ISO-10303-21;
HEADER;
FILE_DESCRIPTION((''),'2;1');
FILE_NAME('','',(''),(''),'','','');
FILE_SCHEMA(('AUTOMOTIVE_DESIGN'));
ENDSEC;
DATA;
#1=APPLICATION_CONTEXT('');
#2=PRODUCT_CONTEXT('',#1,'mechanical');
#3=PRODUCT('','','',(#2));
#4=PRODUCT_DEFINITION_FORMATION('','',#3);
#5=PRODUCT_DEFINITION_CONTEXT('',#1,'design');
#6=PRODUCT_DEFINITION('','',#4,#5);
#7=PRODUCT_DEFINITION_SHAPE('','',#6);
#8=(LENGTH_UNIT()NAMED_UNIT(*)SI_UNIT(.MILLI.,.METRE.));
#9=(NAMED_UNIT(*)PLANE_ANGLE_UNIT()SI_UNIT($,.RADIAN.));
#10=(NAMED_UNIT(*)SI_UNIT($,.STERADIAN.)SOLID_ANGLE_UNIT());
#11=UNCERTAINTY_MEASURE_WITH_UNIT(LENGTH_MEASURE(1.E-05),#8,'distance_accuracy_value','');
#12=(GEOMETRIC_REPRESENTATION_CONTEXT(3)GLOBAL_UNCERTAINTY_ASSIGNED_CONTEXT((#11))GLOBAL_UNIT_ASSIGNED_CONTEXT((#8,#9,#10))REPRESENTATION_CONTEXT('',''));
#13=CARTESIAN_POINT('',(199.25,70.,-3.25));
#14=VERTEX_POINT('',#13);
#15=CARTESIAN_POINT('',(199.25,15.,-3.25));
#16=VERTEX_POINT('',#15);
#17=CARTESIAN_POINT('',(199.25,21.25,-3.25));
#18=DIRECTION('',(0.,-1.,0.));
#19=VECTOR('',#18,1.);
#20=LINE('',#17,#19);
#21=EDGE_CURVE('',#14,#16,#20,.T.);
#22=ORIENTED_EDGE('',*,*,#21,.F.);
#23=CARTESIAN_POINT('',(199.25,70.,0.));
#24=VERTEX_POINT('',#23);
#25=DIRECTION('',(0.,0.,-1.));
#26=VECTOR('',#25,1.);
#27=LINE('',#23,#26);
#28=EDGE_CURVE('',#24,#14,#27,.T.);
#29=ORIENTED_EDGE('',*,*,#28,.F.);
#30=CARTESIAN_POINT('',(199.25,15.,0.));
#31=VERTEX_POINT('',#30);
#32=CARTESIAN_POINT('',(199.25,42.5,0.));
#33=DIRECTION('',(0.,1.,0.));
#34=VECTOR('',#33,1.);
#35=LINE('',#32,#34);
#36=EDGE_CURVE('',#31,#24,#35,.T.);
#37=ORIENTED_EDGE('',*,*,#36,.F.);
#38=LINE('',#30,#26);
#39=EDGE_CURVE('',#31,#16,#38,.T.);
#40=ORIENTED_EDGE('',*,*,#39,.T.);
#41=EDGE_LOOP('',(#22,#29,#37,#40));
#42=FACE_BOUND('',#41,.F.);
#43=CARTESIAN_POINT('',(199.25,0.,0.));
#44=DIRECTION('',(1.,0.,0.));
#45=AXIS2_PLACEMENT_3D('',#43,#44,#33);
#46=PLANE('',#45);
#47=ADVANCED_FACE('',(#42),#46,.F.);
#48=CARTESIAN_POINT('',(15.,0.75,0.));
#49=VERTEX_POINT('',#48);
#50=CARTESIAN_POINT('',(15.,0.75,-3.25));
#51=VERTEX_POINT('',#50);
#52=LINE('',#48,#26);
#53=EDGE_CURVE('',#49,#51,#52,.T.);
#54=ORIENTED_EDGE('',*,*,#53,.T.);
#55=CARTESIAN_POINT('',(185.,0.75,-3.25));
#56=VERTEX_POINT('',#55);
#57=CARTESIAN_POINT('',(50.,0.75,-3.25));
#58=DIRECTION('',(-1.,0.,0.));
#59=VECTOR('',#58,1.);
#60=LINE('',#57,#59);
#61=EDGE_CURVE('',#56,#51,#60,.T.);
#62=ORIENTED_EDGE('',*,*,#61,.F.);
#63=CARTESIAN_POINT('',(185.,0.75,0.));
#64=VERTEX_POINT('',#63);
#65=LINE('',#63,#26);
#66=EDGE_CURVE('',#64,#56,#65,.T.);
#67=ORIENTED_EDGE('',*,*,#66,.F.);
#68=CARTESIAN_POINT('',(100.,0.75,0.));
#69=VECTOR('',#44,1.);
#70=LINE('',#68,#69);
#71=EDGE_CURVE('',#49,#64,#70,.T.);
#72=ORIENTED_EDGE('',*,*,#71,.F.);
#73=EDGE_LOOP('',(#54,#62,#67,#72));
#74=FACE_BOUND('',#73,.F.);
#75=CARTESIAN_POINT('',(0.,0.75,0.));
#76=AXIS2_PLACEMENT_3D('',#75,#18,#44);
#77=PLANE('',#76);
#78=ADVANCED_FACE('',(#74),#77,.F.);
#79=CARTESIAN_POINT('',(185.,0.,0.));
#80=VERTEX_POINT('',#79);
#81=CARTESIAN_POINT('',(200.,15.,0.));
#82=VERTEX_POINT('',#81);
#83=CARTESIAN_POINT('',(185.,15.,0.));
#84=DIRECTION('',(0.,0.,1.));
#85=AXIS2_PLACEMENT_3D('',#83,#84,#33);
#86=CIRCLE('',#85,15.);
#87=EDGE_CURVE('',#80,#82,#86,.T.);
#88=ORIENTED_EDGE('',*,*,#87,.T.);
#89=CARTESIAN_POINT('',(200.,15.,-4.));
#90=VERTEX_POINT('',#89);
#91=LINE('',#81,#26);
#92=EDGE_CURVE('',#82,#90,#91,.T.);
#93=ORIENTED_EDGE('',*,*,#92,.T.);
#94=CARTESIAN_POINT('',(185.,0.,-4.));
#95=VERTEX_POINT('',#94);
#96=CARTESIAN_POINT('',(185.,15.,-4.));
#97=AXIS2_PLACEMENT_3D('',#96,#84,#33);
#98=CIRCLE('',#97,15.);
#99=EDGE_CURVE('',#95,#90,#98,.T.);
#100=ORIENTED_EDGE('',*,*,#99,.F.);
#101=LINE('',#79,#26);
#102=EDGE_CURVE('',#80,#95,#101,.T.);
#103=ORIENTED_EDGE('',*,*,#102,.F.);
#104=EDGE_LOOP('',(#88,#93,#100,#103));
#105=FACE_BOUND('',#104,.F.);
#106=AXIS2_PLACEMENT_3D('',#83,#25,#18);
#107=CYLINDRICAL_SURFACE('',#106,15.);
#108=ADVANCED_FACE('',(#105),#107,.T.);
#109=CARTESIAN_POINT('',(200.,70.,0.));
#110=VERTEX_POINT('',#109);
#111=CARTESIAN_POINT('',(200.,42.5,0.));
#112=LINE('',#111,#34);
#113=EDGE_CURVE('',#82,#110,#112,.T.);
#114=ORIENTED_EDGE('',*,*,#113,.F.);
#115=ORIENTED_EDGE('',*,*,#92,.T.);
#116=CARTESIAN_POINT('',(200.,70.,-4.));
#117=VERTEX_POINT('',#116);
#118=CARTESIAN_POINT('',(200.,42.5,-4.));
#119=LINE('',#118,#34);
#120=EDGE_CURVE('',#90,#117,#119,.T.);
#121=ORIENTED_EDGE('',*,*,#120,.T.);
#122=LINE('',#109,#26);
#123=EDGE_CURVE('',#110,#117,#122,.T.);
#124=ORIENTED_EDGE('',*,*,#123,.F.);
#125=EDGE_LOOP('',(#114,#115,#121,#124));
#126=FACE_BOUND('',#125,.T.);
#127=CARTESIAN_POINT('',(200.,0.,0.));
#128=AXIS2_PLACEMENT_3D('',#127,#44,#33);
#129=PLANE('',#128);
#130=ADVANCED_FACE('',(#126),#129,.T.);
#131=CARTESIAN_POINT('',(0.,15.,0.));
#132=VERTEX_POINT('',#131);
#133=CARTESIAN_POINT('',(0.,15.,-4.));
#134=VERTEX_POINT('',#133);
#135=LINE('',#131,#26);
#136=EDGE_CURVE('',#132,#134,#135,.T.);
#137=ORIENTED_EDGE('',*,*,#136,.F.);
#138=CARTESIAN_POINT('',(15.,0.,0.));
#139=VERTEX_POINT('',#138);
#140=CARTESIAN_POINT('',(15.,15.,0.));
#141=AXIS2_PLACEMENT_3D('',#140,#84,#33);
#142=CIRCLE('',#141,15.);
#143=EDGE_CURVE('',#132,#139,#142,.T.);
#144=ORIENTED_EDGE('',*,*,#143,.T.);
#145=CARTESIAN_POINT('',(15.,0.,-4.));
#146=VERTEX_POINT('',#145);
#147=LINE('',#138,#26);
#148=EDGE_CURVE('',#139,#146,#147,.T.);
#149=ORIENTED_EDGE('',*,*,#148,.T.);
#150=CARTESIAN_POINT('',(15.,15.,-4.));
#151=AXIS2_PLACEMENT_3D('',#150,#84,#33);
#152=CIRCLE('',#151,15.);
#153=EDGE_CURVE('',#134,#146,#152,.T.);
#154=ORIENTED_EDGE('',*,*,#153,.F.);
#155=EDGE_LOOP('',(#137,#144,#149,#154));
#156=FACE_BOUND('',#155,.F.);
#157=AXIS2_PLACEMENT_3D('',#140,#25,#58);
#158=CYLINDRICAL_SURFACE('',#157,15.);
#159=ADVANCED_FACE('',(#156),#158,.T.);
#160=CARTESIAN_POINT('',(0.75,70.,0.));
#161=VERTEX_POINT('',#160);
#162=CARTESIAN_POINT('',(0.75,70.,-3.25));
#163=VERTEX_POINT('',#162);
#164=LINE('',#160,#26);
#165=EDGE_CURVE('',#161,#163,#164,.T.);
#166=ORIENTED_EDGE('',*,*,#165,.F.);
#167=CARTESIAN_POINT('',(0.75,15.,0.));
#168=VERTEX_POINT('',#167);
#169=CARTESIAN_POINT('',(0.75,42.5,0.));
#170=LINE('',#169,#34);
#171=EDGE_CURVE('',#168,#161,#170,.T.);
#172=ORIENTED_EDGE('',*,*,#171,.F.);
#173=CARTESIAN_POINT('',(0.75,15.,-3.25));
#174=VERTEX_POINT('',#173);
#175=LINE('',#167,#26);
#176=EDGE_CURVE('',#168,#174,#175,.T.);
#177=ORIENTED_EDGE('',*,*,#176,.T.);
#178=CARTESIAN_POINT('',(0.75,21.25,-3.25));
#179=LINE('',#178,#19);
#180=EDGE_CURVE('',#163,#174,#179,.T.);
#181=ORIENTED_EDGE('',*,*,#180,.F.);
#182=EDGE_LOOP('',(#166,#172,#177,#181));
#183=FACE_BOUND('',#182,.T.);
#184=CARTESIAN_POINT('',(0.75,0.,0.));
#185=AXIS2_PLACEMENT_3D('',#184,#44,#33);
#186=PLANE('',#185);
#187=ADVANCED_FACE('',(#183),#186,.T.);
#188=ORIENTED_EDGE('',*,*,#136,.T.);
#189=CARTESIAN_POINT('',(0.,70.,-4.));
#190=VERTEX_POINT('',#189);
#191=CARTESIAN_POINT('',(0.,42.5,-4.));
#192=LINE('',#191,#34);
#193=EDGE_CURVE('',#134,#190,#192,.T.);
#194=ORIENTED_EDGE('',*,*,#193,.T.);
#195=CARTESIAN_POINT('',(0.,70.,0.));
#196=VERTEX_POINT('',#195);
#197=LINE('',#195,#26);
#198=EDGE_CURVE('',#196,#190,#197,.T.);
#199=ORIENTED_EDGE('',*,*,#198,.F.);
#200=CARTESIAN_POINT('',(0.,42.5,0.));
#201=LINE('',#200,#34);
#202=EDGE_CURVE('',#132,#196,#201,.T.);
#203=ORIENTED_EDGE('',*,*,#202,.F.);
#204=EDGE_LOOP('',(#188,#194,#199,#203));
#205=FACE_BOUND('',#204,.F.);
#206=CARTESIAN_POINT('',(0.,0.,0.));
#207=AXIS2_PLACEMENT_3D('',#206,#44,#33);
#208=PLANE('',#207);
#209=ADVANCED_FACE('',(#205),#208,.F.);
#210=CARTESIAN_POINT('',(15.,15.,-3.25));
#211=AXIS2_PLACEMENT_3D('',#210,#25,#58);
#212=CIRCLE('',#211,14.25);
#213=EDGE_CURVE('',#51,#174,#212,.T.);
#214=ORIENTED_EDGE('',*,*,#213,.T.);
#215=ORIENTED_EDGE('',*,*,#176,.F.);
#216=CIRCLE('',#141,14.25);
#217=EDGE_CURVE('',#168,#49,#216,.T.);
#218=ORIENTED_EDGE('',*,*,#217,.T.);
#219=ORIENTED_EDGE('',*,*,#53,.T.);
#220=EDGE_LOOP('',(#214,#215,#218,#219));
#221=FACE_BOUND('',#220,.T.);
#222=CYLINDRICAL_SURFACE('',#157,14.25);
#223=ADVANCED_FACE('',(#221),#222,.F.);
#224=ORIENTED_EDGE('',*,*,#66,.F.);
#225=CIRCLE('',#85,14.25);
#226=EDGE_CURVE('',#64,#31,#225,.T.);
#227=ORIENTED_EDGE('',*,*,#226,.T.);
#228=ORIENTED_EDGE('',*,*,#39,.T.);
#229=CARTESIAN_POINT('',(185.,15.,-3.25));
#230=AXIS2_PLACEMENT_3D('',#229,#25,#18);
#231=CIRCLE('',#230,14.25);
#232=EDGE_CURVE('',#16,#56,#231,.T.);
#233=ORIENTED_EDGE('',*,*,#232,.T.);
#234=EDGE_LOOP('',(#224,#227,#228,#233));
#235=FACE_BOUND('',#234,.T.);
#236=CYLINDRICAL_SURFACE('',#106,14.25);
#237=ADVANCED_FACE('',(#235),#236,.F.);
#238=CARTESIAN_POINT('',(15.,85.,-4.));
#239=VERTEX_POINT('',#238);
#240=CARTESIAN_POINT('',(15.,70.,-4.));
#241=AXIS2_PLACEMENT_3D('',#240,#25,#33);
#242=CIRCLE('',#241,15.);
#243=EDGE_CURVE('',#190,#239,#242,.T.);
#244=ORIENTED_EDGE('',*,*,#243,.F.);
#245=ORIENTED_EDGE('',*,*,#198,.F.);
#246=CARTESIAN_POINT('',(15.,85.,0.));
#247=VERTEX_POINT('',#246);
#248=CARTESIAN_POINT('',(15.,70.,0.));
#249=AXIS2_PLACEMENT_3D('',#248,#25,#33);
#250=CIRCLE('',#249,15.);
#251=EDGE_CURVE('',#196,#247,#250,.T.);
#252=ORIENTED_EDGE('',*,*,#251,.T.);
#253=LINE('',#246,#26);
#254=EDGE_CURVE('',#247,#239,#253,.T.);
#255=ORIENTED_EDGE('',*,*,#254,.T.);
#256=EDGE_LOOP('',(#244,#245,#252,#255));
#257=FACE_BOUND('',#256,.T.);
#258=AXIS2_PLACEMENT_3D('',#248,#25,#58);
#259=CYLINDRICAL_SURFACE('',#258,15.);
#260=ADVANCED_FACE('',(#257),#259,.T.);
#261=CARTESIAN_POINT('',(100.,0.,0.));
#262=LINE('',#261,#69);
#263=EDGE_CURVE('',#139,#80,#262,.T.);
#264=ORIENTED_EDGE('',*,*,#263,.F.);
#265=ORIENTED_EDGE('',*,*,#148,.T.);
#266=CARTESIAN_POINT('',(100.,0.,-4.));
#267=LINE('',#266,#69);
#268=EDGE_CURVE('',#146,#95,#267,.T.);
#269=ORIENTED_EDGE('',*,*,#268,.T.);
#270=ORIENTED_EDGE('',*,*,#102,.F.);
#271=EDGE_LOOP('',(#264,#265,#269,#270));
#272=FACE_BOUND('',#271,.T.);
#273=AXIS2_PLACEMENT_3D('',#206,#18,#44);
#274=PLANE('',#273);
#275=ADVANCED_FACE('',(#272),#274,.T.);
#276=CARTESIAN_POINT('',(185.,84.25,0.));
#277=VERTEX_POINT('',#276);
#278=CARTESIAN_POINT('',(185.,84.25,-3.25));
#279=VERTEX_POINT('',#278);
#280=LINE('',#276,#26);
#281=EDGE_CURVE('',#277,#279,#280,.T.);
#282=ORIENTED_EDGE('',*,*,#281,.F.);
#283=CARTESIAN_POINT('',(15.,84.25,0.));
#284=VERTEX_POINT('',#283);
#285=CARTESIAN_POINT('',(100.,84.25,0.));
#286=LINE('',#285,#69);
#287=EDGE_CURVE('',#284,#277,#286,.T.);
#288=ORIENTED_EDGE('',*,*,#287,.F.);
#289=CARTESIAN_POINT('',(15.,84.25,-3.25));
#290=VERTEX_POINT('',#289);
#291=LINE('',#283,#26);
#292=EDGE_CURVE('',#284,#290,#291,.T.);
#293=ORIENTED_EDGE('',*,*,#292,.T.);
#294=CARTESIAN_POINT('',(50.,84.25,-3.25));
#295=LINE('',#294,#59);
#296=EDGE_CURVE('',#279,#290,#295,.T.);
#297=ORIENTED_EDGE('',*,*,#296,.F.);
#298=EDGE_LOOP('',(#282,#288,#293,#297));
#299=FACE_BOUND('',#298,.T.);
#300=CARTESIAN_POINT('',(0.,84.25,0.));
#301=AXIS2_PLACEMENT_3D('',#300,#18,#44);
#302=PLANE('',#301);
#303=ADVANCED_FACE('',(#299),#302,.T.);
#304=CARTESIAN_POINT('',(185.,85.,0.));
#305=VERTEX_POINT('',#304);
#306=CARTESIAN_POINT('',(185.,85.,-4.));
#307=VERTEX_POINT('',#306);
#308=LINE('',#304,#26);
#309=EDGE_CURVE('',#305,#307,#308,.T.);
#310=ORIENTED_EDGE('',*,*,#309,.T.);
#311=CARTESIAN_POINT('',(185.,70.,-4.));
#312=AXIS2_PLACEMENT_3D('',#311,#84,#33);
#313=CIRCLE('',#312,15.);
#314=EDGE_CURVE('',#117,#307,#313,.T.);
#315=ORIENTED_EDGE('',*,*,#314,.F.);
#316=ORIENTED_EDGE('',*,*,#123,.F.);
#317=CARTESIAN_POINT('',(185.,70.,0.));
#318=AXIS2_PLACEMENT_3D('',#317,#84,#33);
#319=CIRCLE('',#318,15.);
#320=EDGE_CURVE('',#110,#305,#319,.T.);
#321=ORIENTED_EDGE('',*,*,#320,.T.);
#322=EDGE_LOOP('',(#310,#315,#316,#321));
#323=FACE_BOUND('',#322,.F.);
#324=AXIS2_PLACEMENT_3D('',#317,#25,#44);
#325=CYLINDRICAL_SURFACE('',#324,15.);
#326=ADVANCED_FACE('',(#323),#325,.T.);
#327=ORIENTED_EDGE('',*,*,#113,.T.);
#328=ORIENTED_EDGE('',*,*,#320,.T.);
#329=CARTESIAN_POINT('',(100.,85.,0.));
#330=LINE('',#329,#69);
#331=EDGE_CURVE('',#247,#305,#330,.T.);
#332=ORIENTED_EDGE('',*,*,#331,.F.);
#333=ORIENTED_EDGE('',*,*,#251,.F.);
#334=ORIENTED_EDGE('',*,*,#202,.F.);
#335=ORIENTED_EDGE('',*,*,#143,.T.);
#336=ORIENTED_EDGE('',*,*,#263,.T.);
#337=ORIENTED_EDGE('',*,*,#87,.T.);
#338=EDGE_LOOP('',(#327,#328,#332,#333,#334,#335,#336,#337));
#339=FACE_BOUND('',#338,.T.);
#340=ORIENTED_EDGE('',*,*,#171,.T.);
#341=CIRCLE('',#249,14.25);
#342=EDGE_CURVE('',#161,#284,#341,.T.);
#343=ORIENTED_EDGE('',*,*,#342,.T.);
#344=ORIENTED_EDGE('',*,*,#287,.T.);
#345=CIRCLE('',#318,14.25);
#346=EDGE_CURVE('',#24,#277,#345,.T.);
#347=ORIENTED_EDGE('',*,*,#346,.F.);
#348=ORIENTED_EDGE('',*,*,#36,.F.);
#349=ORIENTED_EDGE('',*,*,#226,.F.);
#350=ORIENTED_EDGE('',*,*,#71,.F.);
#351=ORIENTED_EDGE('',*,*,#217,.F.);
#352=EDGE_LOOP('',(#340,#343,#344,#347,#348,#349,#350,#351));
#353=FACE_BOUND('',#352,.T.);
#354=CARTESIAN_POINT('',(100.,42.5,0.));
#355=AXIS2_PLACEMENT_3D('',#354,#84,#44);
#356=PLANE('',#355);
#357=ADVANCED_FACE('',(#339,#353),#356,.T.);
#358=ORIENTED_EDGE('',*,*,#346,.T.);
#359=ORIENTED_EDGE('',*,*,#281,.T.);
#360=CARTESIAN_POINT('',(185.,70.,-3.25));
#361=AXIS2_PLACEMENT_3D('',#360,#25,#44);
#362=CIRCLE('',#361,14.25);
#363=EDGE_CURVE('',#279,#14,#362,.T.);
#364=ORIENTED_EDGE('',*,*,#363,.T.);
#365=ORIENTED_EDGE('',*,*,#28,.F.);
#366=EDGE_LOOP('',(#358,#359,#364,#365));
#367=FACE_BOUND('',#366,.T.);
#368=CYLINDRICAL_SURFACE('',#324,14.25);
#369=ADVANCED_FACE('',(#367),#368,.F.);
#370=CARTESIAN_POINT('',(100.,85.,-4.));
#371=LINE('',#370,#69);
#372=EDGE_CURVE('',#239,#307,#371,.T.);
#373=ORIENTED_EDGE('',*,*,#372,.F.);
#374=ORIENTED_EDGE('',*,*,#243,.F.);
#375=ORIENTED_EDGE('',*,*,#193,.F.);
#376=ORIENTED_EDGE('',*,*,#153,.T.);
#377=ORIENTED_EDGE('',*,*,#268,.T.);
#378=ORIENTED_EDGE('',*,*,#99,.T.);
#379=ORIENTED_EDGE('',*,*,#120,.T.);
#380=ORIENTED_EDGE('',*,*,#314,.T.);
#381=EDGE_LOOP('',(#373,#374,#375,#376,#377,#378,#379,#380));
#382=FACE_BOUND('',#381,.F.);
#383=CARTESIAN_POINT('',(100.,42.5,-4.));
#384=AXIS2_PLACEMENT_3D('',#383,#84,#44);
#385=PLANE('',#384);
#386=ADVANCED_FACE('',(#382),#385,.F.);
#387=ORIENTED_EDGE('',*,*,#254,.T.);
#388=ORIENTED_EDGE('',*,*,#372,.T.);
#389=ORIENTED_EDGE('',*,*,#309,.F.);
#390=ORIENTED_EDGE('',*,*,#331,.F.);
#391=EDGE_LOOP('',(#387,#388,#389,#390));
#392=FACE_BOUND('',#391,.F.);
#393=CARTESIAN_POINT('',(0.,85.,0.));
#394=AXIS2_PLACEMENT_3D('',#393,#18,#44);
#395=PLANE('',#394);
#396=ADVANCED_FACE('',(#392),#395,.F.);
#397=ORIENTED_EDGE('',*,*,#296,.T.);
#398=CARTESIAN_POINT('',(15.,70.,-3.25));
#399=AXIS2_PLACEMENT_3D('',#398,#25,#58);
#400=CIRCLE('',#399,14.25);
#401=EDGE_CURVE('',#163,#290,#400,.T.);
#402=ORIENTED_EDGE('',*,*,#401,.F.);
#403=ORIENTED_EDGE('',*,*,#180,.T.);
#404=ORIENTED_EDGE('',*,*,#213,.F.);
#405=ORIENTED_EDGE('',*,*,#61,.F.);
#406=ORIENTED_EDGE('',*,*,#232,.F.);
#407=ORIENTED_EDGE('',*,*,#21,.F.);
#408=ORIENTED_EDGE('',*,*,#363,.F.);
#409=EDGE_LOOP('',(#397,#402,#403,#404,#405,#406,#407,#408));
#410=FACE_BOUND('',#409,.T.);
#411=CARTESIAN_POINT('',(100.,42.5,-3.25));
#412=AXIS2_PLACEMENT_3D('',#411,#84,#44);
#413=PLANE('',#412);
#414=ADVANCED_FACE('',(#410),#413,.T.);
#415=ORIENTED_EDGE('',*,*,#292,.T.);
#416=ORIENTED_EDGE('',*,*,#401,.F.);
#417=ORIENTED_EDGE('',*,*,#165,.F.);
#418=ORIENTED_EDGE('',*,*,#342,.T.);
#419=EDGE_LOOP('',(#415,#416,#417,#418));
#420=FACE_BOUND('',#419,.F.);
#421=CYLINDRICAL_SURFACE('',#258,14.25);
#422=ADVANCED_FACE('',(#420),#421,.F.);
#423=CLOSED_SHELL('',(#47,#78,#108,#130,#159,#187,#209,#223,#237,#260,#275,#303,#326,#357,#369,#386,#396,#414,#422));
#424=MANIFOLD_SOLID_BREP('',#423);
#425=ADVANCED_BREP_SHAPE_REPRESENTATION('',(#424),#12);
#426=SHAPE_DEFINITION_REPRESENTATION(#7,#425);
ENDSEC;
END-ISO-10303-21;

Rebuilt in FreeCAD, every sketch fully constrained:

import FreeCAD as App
import Part
import Sketcher

V = App.Vector
Q = App.Units.Quantity


def edges_at(feature, points):
    """Names of the edges that pass closest to the given points."""
    edges = feature.Shape.Edges
    near = lambda p: min(range(len(edges)), key=lambda i: edges[i].distToShape(Part.Vertex(*p))[0])
    return sorted({f"Edge{near(p) + 1}" for p in points})


def faces_at(feature, points):
    """Names of the faces that lie closest to the given points."""
    faces = feature.Shape.Faces
    near = lambda p: min(range(len(faces)), key=lambda i: faces[i].distToShape(Part.Vertex(*p))[0])
    return sorted({f"Face{near(p) + 1}" for p in points})

doc = App.newDocument("Part")
body = doc.addObject("PartDesign::Body", "Body")

# Sketch on XY plane
sketch1 = doc.addObject("Sketcher::SketchObject", "Sketch")
body.addObject(sketch1)
sketch1.AttachmentSupport = (doc.XY_Plane, [""])
sketch1.MapMode = "FlatFace"
sketch1.addGeometry(Part.LineSegment(V(0, 85, 0), V(0, 0, 0)), False)
sketch1.addGeometry(Part.LineSegment(V(0, 0, 0), V(200, 0, 0)), False)
sketch1.addGeometry(Part.LineSegment(V(200, 0, 0), V(200, 85, 0)), False)
sketch1.addGeometry(Part.LineSegment(V(200, 85, 0), V(0, 85, 0)), False)
sketch1.addConstraint(Sketcher.Constraint("Coincident", 0, 2, 1, 1))
sketch1.addConstraint(Sketcher.Constraint("Coincident", 1, 2, 2, 1))
sketch1.addConstraint(Sketcher.Constraint("Coincident", 2, 2, 3, 1))
sketch1.addConstraint(Sketcher.Constraint("Coincident", 3, 2, 0, 1))
sketch1.addConstraint(Sketcher.Constraint("Vertical", 0))
sketch1.addConstraint(Sketcher.Constraint("Horizontal", 1))
sketch1.addConstraint(Sketcher.Constraint("Vertical", 2))
sketch1.addConstraint(Sketcher.Constraint("Horizontal", 3))
sketch1.addConstraint(Sketcher.Constraint("Coincident", 0, 2, -1, 1))
sketch1.addConstraint(Sketcher.Constraint("DistanceX", 1, 1, 1, 2, Q("200 mm")))
sketch1.addConstraint(Sketcher.Constraint("DistanceY", 0, 2, 0, 1, Q("85 mm")))
pad1 = doc.addObject("PartDesign::Pad", "Pad")
body.addObject(pad1)
pad1.Profile = sketch1
pad1.Length = 4
pad1.Reversed = True
doc.recompute()

fillet = doc.addObject("PartDesign::Fillet", "Fillet")
body.addObject(fillet)
fillet.Base = (pad1, edges_at(pad1, [
    (0, 0, -2),
    (200, 0, -2),
    (200, 85, -2),
    (0, 85, -2),
]))
fillet.Radius = 15
doc.recompute()

thickness = doc.addObject("PartDesign::Thickness", "Thickness")
body.addObject(thickness)
thickness.Base = (fillet, faces_at(fillet, [(100, 42.5, 0)]))
thickness.Value = 0.75
thickness.Reversed = True
thickness.Join = "Arc"

doc.recompute()
